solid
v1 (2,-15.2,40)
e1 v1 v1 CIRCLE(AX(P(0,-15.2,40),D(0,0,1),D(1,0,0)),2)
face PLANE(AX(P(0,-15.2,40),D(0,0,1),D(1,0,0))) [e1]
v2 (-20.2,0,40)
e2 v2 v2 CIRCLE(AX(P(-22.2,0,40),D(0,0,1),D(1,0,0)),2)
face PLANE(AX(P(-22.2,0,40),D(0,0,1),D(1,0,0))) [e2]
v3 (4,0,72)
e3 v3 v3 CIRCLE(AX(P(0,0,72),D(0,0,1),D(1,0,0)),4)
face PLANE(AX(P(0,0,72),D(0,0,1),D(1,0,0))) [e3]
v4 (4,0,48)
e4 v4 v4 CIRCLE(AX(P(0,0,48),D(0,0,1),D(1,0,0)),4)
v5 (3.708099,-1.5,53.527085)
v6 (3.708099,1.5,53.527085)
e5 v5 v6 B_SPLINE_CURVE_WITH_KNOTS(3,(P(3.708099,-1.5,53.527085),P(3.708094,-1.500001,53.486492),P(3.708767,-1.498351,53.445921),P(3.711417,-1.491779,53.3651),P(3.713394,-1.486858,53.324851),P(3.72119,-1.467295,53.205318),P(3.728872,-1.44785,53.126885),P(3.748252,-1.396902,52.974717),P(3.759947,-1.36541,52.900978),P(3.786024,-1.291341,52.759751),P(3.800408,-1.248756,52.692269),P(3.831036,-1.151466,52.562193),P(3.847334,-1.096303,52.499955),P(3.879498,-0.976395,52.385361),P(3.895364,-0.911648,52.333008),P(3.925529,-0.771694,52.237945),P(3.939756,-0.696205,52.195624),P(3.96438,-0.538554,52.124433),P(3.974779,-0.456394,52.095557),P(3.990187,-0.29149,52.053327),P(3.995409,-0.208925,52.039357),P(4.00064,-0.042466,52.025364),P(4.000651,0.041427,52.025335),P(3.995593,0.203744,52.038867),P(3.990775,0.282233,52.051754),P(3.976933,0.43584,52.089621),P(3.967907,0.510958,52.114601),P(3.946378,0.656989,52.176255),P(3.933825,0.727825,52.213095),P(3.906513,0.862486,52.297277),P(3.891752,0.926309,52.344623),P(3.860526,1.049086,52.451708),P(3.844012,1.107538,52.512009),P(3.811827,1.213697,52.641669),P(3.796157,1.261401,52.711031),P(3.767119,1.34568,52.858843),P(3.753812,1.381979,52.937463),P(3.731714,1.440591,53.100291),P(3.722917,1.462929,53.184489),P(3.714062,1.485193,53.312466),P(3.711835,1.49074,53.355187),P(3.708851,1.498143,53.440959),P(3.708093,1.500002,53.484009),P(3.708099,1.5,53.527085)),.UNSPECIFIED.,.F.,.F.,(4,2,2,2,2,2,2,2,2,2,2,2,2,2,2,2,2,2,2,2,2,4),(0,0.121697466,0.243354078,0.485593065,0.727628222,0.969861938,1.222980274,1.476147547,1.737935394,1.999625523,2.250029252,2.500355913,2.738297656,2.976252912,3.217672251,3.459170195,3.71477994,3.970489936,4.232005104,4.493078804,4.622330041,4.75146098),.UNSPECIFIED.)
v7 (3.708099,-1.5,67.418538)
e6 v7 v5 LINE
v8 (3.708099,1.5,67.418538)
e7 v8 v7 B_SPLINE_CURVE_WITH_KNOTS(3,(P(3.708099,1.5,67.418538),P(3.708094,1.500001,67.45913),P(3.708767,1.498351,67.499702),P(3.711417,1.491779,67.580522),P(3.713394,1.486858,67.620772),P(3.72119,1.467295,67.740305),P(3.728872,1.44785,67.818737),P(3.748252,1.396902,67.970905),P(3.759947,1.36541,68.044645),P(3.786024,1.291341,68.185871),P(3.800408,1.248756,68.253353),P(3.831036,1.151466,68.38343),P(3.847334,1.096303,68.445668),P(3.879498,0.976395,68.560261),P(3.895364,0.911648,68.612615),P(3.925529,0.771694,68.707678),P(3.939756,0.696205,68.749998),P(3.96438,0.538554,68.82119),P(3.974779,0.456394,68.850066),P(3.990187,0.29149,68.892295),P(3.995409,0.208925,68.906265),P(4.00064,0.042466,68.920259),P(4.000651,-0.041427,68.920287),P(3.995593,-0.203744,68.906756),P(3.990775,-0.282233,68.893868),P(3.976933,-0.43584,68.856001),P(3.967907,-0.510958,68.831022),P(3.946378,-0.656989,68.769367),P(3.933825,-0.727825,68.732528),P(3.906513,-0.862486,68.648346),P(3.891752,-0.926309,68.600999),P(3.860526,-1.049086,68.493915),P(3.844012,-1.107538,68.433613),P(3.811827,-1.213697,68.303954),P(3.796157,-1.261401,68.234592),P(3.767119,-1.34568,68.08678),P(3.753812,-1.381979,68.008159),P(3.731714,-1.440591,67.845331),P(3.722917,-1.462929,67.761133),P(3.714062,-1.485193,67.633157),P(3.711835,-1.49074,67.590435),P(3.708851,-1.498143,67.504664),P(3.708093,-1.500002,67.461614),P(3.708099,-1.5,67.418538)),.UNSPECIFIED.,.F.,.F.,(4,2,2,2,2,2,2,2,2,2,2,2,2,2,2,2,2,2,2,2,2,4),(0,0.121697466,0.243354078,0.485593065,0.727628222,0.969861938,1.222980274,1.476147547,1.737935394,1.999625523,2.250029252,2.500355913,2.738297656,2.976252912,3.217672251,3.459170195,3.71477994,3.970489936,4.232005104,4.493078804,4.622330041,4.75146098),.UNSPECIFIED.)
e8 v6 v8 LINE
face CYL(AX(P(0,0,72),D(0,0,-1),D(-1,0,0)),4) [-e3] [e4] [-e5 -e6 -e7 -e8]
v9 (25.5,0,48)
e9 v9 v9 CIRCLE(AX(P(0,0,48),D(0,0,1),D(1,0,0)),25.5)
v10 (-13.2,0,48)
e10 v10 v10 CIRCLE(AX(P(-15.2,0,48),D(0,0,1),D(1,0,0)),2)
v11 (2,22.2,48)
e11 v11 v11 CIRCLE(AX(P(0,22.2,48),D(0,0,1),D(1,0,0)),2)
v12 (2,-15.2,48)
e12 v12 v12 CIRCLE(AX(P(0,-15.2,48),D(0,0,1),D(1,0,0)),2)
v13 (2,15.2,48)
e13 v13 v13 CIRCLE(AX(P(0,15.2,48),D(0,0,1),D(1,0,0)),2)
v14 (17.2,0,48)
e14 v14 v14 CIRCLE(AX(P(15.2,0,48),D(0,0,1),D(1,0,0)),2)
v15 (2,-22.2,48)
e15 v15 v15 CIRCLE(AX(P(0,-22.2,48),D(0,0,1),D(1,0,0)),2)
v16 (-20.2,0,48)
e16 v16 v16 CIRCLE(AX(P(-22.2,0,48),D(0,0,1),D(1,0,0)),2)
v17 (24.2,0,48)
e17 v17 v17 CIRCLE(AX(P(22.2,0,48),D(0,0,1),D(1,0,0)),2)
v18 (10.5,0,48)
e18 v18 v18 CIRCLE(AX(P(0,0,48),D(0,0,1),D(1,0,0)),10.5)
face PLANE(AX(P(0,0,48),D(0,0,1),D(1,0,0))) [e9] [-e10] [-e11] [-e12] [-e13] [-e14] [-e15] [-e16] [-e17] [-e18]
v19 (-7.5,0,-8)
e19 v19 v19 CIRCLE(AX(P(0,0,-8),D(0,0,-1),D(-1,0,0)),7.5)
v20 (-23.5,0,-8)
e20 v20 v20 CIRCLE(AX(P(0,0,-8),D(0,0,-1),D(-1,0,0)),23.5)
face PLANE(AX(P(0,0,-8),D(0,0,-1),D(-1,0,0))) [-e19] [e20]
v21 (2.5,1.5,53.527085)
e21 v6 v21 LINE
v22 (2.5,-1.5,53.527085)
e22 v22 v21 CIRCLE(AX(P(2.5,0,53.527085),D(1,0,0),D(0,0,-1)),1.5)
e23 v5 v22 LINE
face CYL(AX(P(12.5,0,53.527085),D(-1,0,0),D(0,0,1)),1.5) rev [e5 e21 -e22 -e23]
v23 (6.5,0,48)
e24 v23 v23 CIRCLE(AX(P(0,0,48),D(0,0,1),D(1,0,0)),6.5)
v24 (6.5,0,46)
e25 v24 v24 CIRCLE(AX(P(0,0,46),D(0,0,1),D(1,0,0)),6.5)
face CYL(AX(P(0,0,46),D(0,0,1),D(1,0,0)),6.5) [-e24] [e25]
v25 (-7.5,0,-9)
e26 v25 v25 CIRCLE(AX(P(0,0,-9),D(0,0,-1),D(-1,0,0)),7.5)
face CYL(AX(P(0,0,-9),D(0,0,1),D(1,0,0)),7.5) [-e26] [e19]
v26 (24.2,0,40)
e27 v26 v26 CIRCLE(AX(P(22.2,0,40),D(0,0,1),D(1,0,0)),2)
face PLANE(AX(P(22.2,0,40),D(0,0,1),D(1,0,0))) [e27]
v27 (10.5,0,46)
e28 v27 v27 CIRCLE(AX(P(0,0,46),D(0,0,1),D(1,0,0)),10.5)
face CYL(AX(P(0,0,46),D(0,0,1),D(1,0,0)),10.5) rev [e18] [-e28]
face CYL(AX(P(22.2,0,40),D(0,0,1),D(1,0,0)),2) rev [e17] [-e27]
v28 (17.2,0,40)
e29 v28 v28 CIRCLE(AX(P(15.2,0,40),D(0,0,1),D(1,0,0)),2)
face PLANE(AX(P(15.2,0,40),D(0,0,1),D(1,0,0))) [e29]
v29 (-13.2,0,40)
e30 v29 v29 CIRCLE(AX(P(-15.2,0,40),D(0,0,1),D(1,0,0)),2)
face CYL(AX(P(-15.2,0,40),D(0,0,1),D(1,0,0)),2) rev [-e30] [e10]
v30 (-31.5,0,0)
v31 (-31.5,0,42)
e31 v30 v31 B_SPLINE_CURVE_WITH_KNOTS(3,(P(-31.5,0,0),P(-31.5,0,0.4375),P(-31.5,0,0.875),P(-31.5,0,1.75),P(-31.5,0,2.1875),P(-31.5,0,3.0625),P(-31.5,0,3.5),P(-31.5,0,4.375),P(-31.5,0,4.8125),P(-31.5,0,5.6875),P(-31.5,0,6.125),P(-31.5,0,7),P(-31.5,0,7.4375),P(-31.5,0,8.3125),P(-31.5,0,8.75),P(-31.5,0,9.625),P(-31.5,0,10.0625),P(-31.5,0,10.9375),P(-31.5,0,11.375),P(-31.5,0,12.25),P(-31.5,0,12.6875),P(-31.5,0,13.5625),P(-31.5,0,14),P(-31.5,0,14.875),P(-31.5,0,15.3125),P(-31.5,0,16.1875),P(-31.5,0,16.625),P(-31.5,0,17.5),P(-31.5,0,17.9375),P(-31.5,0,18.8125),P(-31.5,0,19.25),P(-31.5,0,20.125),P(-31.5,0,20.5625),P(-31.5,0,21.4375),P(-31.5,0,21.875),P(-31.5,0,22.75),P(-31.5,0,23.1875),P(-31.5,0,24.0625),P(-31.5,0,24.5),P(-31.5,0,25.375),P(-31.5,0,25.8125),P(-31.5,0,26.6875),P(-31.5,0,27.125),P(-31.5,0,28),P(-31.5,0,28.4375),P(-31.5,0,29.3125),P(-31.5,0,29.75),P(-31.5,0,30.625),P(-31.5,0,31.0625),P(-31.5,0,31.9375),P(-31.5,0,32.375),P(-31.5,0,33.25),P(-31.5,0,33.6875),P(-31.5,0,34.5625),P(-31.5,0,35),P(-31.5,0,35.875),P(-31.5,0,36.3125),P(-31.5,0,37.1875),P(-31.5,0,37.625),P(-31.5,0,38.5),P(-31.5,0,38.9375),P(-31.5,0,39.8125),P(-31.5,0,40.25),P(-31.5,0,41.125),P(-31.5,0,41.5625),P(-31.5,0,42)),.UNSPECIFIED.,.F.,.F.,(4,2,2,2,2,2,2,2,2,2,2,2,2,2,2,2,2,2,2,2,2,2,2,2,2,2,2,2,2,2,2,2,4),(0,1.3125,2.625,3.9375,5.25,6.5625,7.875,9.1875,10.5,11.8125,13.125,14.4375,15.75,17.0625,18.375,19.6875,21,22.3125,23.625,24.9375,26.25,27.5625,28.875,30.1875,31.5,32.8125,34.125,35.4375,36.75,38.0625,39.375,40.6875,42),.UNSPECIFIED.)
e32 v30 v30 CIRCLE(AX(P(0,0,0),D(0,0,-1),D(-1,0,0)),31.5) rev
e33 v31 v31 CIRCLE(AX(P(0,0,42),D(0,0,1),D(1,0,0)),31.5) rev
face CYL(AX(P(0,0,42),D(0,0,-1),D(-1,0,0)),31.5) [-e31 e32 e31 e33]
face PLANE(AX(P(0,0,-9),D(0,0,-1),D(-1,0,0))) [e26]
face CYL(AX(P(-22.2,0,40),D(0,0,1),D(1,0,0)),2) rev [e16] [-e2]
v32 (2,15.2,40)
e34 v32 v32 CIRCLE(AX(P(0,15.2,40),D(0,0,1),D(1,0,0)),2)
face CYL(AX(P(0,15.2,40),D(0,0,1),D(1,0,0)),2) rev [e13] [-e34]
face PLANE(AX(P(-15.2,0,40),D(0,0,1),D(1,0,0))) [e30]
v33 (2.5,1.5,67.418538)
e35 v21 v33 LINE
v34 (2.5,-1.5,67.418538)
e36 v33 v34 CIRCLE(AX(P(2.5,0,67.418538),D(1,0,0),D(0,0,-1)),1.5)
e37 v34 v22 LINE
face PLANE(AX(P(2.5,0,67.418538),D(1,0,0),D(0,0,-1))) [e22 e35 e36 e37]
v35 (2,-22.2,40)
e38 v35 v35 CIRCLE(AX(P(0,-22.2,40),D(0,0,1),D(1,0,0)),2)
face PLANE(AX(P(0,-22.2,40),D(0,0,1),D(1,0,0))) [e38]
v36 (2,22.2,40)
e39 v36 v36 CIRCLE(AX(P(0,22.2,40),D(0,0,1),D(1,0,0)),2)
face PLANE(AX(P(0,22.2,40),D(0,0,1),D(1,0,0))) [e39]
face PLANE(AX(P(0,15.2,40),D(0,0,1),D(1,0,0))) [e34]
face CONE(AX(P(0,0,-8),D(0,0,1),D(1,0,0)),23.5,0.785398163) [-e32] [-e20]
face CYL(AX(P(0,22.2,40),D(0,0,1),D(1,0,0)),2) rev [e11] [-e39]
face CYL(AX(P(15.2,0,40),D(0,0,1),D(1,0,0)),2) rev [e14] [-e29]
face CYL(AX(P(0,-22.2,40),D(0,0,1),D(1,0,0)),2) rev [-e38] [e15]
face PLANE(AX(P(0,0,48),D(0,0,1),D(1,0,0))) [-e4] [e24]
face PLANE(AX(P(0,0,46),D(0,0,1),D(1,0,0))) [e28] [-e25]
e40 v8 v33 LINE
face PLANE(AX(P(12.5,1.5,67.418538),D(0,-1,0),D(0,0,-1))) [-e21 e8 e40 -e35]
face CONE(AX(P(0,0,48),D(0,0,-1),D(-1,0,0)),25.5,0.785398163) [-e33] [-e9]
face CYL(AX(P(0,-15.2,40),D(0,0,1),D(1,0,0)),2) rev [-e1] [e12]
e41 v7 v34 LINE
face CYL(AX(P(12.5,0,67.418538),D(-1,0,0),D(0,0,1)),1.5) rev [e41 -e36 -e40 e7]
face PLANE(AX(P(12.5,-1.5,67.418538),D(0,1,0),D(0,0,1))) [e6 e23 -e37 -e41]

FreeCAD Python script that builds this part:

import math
import FreeCAD as App
import Part
import Sketcher
from FreeCAD import Vector


def edges_at(feature, points):
    """Names of the edges that pass closest to the given points."""
    edges = feature.Shape.Edges
    near = lambda p: min(range(len(edges)), key=lambda i: edges[i].distToShape(Part.Vertex(*p))[0])
    return sorted({f"Edge{near(p) + 1}" for p in points})

doc = App.newDocument("Part")
body = doc.addObject("PartDesign::Body", "Body")

sketch1 = body.newObject("Sketcher::SketchObject", "Sketch")
sketch1.AttachmentSupport = (doc.getObject("XY_Plane"), [""])
sketch1.MapMode = "FlatFace"
sketch1.addGeometry(Part.Circle(Vector(0, 0, 0), Vector(0, 0, 1), 32), False)
sketch1.addConstraint(Sketcher.Constraint("Coincident", 0, 3, -1, 1))
sketch1.addConstraint(Sketcher.Constraint("Diameter", 0, 63.0))
pad1 = body.newObject("PartDesign::Pad", "Pad")
pad1.Profile = sketch1
pad1.Length = 42

sketch2 = body.newObject("Sketcher::SketchObject", "Sketch001")
sketch2.AttachmentSupport = (doc.getObject("XY_Plane"), [""])
sketch2.MapMode = "FlatFace"
sketch2.AttachmentOffset = App.Placement(Vector(0, 0, 42), App.Rotation())
sketch2.addGeometry(Part.Circle(Vector(0, 0, 0), Vector(0, 0, 1), 32), False)
sketch2.addConstraint(Sketcher.Constraint("Coincident", 0, 3, -1, 1))
sketch2.addConstraint(Sketcher.Constraint("Diameter", 0, 63.0))
pad2 = body.newObject("PartDesign::Pad", "Pad001")
pad2.Profile = sketch2
pad2.Length = 6
doc.recompute()

chamfer = body.newObject("PartDesign::Chamfer", "Chamfer")
chamfer.Base = (pad2, edges_at(pad2, [(31.5, 0, 48)]))
chamfer.Size = 6

sketch3 = body.newObject("Sketcher::SketchObject", "Sketch002")
sketch3.AttachmentSupport = (doc.getObject("XY_Plane"), [""])
sketch3.MapMode = "FlatFace"
sketch3.addGeometry(Part.Circle(Vector(0, 0, 0), Vector(0, 0, 1), 32), False)
sketch3.addConstraint(Sketcher.Constraint("Coincident", 0, 3, -1, 1))
sketch3.addConstraint(Sketcher.Constraint("Diameter", 0, 63.0))
pad3 = body.newObject("PartDesign::Pad", "Pad002")
pad3.Profile = sketch3
pad3.Length = 8
pad3.Reversed = True
doc.recompute()

chamfer2 = body.newObject("PartDesign::Chamfer", "Chamfer001")
chamfer2.Base = (pad3, edges_at(pad3, [(31.5, 0, -8)]))
chamfer2.Size = 8

sketch4 = body.newObject("Sketcher::SketchObject", "Sketch003")
sketch4.AttachmentSupport = (doc.getObject("XY_Plane"), [""])
sketch4.MapMode = "FlatFace"
sketch4.AttachmentOffset = App.Placement(Vector(0, 0, -8), App.Rotation())
sketch4.addGeometry(Part.Circle(Vector(0, 0, 0), Vector(0, 0, 1), 8), False)
sketch4.addConstraint(Sketcher.Constraint("Coincident", 0, 3, -1, 1))
sketch4.addConstraint(Sketcher.Constraint("Diameter", 0, 15.0))
pad4 = body.newObject("PartDesign::Pad", "Pad003")
pad4.Profile = sketch4
pad4.Length = 1
pad4.Reversed = True

sketch5 = body.newObject("Sketcher::SketchObject", "Sketch004")
sketch5.AttachmentSupport = (doc.getObject("XY_Plane"), [""])
sketch5.MapMode = "FlatFace"
sketch5.AttachmentOffset = App.Placement(Vector(0, 0, 48), App.Rotation())
sketch5.addGeometry(Part.Circle(Vector(0, 0, 0), Vector(0, 0, 1), 4), False)
sketch5.addConstraint(Sketcher.Constraint("Coincident", 0, 3, -1, 1))
sketch5.addConstraint(Sketcher.Constraint("Diameter", 0, 8.0))
pad5 = body.newObject("PartDesign::Pad", "Pad004")
pad5.Profile = sketch5
pad5.Length = 24

sketch6 = body.newObject("Sketcher::SketchObject", "Sketch005")
sketch6.AttachmentSupport = (doc.getObject("XY_Plane"), [""])
sketch6.MapMode = "FlatFace"
sketch6.AttachmentOffset = App.Placement(Vector(0, 0, 48), App.Rotation())
sketch6.addGeometry(Part.Circle(Vector(0, 15.2, 0), Vector(0, 0, 1), 2), False)
sketch6.addGeometry(Part.Circle(Vector(0, 22.2, 0), Vector(0, 0, 1), 2), False)
sketch6.addGeometry(Part.Circle(Vector(22.2, 0, 0), Vector(0, 0, 1), 2), False)
sketch6.addGeometry(Part.Circle(Vector(15.2, 0, 0), Vector(0, 0, 1), 2), False)
sketch6.addGeometry(Part.Circle(Vector(0, -22.2, 0), Vector(0, 0, 1), 2), False)
sketch6.addGeometry(Part.Circle(Vector(0, -15.2, 0), Vector(0, 0, 1), 2), False)
sketch6.addGeometry(Part.Circle(Vector(-22.2, 0, 0), Vector(0, 0, 1), 2), False)
sketch6.addGeometry(Part.Circle(Vector(-15.2, 0, 0), Vector(0, 0, 1), 2), False)
sketch6.addConstraint(Sketcher.Constraint("Equal", 0, 1))
sketch6.addConstraint(Sketcher.Constraint("Equal", 1, 2))
sketch6.addConstraint(Sketcher.Constraint("Equal", 2, 3))
sketch6.addConstraint(Sketcher.Constraint("Equal", 3, 4))
sketch6.addConstraint(Sketcher.Constraint("Equal", 4, 5))
sketch6.addConstraint(Sketcher.Constraint("Equal", 5, 6))
sketch6.addConstraint(Sketcher.Constraint("Equal", 6, 7))
sketch6.addConstraint(Sketcher.Constraint("Symmetric", 1, 3, 4, 3, -1, 1))
sketch6.addConstraint(Sketcher.Constraint("Symmetric", 0, 3, 5, 3, -1, 1))
sketch6.addConstraint(Sketcher.Constraint("Symmetric", 2, 3, 6, 3, -1, 1))
sketch6.addConstraint(Sketcher.Constraint("Symmetric", 3, 3, 7, 3, -1, 1))
sketch6.addConstraint(Sketcher.Constraint("PointOnObject", 0, 3, -2))
sketch6.addConstraint(Sketcher.Constraint("PointOnObject", 1, 3, -2))
sketch6.addConstraint(Sketcher.Constraint("PointOnObject", 2, 3, -1))
sketch6.addConstraint(Sketcher.Constraint("PointOnObject", 3, 3, -1))
sketch6.addConstraint(Sketcher.Constraint("Diameter", 0, 4.0))
sketch6.addConstraint(Sketcher.Constraint("DistanceY", 0, 3, 1, 3, 7.0))
sketch6.addConstraint(Sketcher.Constraint("DistanceX", 3, 3, 2, 3, 7.0))
sketch6.addConstraint(Sketcher.Constraint("DistanceY", -1, 1, 0, 3, 15.2))
sketch6.addConstraint(Sketcher.Constraint("DistanceX", -1, 1, 2, 3, 22.2))
pocket1 = body.newObject("PartDesign::Pocket", "Pocket")
pocket1.Profile = sketch6
pocket1.Length = 8

sketch7 = body.newObject("Sketcher::SketchObject", "Sketch006")
sketch7.AttachmentSupport = (doc.getObject("YZ_Plane"), [""])
sketch7.MapMode = "FlatFace"
sketch7.AttachmentOffset = App.Placement(Vector(0, 0, 2.5), App.Rotation())
sketch7.addGeometry(Part.LineSegment(Vector(1.5, 53.5, 0), Vector(1.5, 67.4, 0)), False)
sketch7.addGeometry(Part.ArcOfCircle(Part.Circle(Vector(0, 67.4, 0), Vector(0, 0, 1), 1.5), math.radians(0), math.radians(180)), False)
sketch7.addGeometry(Part.LineSegment(Vector(-1.5, 67.4, 0), Vector(-1.5, 53.5, 0)), False)
sketch7.addGeometry(Part.ArcOfCircle(Part.Circle(Vector(0, 53.5, 0), Vector(0, 0, 1), 1.5), math.radians(180), math.radians(360)), False)
sketch7.addConstraint(Sketcher.Constraint("Tangent", 0, 2, 1, 1))
sketch7.addConstraint(Sketcher.Constraint("Tangent", 1, 2, 2, 1))
sketch7.addConstraint(Sketcher.Constraint("Tangent", 2, 2, 3, 1))
sketch7.addConstraint(Sketcher.Constraint("Tangent", 3, 2, 0, 1))
sketch7.addConstraint(Sketcher.Constraint("Vertical", 0))
sketch7.addConstraint(Sketcher.Constraint("Vertical", 2))
sketch7.addConstraint(Sketcher.Constraint("PointOnObject", 1, 3, -2))
sketch7.addConstraint(Sketcher.Constraint("Radius", 1, 1.5))
sketch7.addConstraint(Sketcher.Constraint("DistanceY", 0, 1, 0, 2, 13.891453))
sketch7.addConstraint(Sketcher.Constraint("DistanceY", -1, 1, 1, 3, 67.418538))
pocket2 = body.newObject("PartDesign::Pocket", "Pocket001")
pocket2.Profile = sketch7
pocket2.Length = 10
pocket2.Reversed = True

sketch8 = body.newObject("Sketcher::SketchObject", "Sketch007")
sketch8.AttachmentSupport = (doc.getObject("XY_Plane"), [""])
sketch8.MapMode = "FlatFace"
sketch8.AttachmentOffset = App.Placement(Vector(0, 0, 48), App.Rotation())
sketch8.addGeometry(Part.Circle(Vector(0, 0, 0), Vector(0, 0, 1), 10), False)
sketch8.addGeometry(Part.Circle(Vector(0, 0, 0), Vector(0, 0, 1), 6), False)
sketch8.addConstraint(Sketcher.Constraint("Coincident", 0, 3, -1, 1))
sketch8.addConstraint(Sketcher.Constraint("Coincident", 1, 3, -1, 1))
sketch8.addConstraint(Sketcher.Constraint("Diameter", 0, 21.0))
sketch8.addConstraint(Sketcher.Constraint("Diameter", 1, 13.0))
pocket3 = body.newObject("PartDesign::Pocket", "Pocket002")
pocket3.Profile = sketch8
pocket3.Length = 2

doc.recompute()
